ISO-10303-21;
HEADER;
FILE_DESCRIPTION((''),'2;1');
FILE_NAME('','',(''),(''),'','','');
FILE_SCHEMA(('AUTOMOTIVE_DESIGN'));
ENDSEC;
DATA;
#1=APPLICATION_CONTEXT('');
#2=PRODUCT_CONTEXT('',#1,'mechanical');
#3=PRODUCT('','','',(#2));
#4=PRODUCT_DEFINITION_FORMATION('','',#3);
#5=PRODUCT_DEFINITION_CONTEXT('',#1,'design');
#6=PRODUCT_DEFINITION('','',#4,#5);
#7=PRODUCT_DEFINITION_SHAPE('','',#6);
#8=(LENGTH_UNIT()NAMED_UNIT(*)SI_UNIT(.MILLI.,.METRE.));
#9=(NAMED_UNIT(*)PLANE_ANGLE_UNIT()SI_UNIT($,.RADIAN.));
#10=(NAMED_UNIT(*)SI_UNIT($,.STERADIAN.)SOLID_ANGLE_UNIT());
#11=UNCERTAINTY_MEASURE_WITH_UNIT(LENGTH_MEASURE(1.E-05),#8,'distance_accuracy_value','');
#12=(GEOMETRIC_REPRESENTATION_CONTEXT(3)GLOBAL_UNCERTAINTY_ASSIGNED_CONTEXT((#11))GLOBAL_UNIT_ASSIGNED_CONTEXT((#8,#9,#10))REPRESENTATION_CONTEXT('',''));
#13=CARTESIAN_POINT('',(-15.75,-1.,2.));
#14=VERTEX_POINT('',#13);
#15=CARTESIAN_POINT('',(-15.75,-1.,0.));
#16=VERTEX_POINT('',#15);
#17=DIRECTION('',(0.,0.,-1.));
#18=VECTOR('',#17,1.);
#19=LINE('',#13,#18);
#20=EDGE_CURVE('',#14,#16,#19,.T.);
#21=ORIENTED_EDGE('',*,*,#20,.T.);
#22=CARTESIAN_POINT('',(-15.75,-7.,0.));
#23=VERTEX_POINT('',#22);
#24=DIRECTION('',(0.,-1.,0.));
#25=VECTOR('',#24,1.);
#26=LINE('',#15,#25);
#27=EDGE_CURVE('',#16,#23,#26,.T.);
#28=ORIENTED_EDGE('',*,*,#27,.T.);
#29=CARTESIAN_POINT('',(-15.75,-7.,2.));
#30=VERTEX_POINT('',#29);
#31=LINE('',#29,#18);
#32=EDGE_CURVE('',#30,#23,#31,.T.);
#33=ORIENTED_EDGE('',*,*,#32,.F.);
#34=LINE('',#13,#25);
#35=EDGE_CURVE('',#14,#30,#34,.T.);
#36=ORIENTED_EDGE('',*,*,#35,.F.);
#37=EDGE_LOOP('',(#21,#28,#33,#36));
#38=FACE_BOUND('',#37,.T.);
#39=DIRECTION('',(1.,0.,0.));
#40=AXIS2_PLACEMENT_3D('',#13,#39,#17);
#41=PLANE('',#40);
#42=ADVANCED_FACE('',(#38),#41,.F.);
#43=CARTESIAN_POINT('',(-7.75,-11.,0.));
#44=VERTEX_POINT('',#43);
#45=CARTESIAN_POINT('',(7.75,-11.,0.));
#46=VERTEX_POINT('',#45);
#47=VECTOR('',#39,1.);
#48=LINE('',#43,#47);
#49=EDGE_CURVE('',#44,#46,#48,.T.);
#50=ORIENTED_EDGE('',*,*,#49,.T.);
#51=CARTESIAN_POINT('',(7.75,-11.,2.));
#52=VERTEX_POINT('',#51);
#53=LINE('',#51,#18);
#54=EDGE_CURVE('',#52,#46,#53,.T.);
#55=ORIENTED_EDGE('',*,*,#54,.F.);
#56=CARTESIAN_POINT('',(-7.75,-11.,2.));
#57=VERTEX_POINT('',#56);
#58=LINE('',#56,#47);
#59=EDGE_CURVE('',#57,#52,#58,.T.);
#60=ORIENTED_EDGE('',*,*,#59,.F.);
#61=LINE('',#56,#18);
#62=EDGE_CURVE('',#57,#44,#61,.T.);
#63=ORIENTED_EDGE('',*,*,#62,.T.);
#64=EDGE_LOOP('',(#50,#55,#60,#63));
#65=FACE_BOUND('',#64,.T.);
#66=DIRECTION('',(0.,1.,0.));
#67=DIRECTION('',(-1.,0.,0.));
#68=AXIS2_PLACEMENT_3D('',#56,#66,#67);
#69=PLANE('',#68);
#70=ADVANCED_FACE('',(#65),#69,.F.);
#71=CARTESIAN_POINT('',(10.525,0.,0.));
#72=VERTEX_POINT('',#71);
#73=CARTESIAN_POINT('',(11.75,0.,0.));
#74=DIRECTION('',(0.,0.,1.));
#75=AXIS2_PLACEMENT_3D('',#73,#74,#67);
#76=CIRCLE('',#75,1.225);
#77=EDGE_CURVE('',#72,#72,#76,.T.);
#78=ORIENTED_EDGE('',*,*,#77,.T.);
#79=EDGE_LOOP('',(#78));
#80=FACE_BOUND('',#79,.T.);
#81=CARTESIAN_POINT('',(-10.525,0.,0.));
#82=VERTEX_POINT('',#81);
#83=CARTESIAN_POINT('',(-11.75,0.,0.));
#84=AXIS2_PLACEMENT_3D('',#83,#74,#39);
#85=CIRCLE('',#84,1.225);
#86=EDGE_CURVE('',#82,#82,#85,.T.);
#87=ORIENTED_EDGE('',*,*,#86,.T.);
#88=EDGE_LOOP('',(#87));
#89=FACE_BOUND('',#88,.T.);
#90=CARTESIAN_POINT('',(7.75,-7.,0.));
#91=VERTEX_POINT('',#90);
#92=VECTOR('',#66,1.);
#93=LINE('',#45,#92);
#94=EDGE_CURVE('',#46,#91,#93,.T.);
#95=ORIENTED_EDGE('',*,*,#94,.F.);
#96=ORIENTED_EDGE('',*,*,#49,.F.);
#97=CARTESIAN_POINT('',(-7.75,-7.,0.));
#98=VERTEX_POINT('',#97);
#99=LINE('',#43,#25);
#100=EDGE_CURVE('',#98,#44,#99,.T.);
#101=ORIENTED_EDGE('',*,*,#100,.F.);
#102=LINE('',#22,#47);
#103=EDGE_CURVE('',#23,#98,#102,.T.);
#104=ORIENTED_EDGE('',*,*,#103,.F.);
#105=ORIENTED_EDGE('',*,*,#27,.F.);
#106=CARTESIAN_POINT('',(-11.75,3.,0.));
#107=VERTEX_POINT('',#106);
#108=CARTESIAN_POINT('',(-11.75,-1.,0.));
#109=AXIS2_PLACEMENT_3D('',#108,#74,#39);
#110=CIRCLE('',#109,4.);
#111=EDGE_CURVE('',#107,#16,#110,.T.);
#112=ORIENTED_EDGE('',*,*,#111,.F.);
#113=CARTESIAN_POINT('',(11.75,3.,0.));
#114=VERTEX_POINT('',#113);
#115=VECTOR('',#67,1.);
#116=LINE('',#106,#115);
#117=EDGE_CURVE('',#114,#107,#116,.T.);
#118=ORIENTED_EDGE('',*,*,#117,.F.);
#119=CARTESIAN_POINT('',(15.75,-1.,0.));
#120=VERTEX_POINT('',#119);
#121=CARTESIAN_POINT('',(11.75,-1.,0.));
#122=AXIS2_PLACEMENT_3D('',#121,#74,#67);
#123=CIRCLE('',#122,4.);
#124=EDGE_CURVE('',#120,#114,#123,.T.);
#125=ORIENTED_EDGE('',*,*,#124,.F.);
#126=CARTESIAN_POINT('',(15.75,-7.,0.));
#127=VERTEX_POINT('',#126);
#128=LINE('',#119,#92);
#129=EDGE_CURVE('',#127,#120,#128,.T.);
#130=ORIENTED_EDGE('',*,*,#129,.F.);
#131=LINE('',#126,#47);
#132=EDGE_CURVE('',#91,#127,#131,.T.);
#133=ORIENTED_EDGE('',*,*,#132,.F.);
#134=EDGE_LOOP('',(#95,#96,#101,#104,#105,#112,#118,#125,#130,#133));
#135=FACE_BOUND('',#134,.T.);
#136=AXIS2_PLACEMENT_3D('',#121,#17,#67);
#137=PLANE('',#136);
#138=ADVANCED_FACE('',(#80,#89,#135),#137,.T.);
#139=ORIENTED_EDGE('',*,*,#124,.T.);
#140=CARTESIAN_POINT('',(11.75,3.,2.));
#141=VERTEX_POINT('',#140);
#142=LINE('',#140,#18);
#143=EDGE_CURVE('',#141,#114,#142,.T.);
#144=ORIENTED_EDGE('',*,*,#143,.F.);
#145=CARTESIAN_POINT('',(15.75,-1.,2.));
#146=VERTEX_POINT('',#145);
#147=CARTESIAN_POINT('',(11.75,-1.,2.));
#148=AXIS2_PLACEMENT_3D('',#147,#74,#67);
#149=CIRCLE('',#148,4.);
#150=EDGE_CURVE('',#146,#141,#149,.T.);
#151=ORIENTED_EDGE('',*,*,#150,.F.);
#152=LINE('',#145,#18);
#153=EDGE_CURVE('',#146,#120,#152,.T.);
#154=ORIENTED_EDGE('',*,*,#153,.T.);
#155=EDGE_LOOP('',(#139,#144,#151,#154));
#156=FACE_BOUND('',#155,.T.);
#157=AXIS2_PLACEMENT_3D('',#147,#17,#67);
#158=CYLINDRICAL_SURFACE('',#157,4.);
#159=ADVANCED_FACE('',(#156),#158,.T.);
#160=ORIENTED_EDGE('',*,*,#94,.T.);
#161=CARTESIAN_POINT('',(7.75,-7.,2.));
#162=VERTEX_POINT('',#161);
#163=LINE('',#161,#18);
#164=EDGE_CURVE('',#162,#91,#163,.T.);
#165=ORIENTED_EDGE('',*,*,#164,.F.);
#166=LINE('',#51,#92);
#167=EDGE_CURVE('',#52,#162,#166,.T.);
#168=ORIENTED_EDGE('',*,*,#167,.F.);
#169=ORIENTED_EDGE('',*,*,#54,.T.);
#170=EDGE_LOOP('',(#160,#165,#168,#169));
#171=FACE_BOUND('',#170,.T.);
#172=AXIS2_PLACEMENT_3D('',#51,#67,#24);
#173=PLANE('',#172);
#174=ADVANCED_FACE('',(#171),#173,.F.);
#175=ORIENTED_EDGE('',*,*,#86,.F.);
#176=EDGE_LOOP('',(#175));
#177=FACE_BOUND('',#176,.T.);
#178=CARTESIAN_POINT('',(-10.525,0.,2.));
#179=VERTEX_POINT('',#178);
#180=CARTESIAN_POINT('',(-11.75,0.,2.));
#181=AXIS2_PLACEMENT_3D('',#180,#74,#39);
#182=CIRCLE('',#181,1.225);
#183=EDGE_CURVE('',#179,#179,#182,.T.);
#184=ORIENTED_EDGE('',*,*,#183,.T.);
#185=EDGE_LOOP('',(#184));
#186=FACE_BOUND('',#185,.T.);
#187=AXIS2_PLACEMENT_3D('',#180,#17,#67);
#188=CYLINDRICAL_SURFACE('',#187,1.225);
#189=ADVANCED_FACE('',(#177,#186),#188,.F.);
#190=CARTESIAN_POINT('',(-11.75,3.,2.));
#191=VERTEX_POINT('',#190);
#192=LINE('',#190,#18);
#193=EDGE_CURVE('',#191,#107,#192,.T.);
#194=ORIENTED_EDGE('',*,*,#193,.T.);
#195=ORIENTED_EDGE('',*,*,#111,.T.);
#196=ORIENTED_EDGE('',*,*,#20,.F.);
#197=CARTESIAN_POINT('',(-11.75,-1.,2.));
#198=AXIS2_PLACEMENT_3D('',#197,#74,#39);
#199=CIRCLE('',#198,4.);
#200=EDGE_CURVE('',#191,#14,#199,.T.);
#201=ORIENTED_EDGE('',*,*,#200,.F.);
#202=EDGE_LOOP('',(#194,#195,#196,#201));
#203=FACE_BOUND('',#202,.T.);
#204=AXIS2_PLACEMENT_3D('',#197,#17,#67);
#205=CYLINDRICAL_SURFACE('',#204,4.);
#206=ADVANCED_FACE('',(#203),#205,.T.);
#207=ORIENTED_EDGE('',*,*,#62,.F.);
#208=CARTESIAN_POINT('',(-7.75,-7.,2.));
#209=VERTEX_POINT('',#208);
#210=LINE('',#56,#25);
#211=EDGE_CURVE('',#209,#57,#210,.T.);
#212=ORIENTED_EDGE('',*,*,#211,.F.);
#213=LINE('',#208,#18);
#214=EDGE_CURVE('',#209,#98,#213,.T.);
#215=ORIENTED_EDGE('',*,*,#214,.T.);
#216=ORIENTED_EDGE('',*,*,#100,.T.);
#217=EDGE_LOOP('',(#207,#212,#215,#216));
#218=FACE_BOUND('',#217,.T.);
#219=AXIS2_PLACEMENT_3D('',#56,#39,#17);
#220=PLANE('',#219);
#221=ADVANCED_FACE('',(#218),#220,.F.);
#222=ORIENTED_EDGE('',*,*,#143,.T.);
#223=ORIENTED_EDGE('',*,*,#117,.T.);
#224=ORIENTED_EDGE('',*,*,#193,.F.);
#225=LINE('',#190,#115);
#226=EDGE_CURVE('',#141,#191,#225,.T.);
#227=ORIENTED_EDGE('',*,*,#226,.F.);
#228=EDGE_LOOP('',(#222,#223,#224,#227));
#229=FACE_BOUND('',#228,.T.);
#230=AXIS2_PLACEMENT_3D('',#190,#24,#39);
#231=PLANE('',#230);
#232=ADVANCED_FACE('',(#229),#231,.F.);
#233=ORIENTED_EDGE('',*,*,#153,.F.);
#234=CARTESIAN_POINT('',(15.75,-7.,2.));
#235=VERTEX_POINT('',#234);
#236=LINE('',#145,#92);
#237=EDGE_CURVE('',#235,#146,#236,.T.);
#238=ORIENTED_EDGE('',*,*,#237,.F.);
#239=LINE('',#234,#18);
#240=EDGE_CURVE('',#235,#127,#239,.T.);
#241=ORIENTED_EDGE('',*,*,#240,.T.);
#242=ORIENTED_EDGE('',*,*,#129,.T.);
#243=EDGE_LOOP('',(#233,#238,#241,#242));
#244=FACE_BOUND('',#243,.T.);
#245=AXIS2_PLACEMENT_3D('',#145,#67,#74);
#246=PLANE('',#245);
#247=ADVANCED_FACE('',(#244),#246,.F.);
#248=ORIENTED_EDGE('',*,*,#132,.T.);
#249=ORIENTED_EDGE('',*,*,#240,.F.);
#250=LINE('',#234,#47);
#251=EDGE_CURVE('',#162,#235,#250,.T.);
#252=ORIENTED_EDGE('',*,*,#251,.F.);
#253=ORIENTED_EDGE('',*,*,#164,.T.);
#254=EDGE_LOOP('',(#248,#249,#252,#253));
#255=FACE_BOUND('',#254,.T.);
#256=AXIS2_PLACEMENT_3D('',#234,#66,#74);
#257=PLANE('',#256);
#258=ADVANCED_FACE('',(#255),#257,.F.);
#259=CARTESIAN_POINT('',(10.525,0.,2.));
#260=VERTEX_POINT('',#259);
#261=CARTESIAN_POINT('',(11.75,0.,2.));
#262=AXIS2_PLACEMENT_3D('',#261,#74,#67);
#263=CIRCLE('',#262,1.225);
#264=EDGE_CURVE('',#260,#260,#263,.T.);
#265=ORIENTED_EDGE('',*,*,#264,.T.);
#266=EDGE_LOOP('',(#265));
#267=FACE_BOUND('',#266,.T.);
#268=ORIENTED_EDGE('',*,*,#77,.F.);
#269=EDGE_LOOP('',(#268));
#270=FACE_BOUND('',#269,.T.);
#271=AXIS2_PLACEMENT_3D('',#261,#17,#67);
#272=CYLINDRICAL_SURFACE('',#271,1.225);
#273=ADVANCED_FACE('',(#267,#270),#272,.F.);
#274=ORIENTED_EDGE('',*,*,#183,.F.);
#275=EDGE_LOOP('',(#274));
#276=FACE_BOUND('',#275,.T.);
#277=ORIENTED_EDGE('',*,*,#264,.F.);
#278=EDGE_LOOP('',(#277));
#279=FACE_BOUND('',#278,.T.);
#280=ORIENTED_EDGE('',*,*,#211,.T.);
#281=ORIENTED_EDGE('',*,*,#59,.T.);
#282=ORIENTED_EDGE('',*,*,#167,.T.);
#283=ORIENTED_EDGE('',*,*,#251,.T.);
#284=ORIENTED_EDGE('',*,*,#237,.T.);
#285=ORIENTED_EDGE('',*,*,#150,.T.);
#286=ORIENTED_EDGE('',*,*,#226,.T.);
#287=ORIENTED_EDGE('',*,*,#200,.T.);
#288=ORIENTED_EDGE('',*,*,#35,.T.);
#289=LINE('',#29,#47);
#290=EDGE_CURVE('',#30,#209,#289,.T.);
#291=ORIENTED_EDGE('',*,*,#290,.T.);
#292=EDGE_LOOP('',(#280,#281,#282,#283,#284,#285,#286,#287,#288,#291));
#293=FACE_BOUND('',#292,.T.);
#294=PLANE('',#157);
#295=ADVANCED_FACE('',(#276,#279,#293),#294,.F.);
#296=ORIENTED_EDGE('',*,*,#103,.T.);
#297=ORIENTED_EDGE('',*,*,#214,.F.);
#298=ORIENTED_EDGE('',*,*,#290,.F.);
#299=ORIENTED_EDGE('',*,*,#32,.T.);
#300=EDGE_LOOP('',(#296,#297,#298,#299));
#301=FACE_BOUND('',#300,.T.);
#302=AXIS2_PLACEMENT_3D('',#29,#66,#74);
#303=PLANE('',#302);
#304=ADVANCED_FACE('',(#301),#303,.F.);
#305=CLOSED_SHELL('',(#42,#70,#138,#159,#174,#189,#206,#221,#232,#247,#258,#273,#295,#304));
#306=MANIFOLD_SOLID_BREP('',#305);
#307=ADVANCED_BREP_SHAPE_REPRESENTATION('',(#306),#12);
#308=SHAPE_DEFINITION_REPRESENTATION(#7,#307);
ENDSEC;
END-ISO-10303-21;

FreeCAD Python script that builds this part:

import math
import FreeCAD as App
import Part
import Sketcher
Q = App.Units.Quantity

doc = App.newDocument("Part")
body = doc.addObject("PartDesign::Body", "Body")

sketch1 = doc.addObject("Sketcher::SketchObject", "Sketch")
body.addObject(sketch1)
sketch1.AttachmentSupport = (doc.XY_Plane, [""])
sketch1.MapMode = "FlatFace"
sketch1.addGeometry([
    Part.LineSegment(App.Vector(-15.8, -7, 0), App.Vector(-7.8, -7, 0)),
    Part.LineSegment(App.Vector(-7.8, -7, 0), App.Vector(-7.8, -11, 0)),
    Part.LineSegment(App.Vector(-7.8, -11, 0), App.Vector(7.8, -11, 0)),
    Part.LineSegment(App.Vector(7.8, -11, 0), App.Vector(7.8, -7, 0)),
    Part.LineSegment(App.Vector(7.8, -7, 0), App.Vector(15.8, -7, 0)),
    Part.LineSegment(App.Vector(15.8, -7, 0), App.Vector(15.8, -1, 0)),
    Part.ArcOfCircle(Part.Circle(App.Vector(11.8, -1, 0), App.Vector(0, 0, 1), 4), math.radians(0), math.radians(90)),
    Part.LineSegment(App.Vector(11.8, 3, 0), App.Vector(-11.8, 3, 0)),
    Part.ArcOfCircle(Part.Circle(App.Vector(-11.8, -1, 0), App.Vector(0, 0, 1), 4), math.radians(90), math.radians(180)),
    Part.LineSegment(App.Vector(-15.8, -1, 0), App.Vector(-15.8, -7, 0)),
    Part.Circle(App.Vector(-11.8, 0, 0), App.Vector(0, 0, 1), 1.2),
    Part.Circle(App.Vector(11.8, 0, 0), App.Vector(0, 0, 1), 1.2),
], False)
sketch1.addConstraint([
    Sketcher.Constraint("Coincident", 0, 2, 1, 1),
    Sketcher.Constraint("Coincident", 1, 2, 2, 1),
    Sketcher.Constraint("Coincident", 2, 2, 3, 1),
    Sketcher.Constraint("Coincident", 3, 2, 4, 1),
    Sketcher.Constraint("Coincident", 4, 2, 5, 1),
    Sketcher.Constraint("Tangent", 5, 2, 6, 1),
    Sketcher.Constraint("Tangent", 6, 2, 7, 1),
    Sketcher.Constraint("Tangent", 7, 2, 8, 1),
    Sketcher.Constraint("Tangent", 8, 2, 9, 1),
    Sketcher.Constraint("Coincident", 9, 2, 0, 1),
    Sketcher.Constraint("Horizontal", 0),
    Sketcher.Constraint("Vertical", 1),
    Sketcher.Constraint("Horizontal", 2),
    Sketcher.Constraint("Vertical", 3),
    Sketcher.Constraint("Horizontal", 4),
    Sketcher.Constraint("Vertical", 5),
    Sketcher.Constraint("Horizontal", 7),
    Sketcher.Constraint("Vertical", 9),
    Sketcher.Constraint("Equal", 6, 8),
    Sketcher.Constraint("Equal", 10, 11),
    Sketcher.Constraint("Symmetric", 10, 3, 11, 3, -1, 1),
    Sketcher.Constraint("Symmetric", 0, 2, 3, 2, -2),
    Sketcher.Constraint("PointOnObject", 10, 3, -1),
    Sketcher.Constraint("Vertical", 8, 3, 10, 3),
    Sketcher.Constraint("Vertical", 6, 3, 11, 3),
    Sketcher.Constraint("Radius", 6, Q("4 mm")),
    Sketcher.Constraint("Diameter", 10, Q("2.45 mm")),
    Sketcher.Constraint("DistanceX", 0, 1, 0, 2, Q("8 mm")),
    Sketcher.Constraint("DistanceY", 1, 2, 1, 1, Q("4 mm")),
    Sketcher.Constraint("DistanceY", 5, 1, 5, 2, Q("6 mm")),
    Sketcher.Constraint("DistanceX", 2, 1, 2, 2, Q("15.5 mm")),
    Sketcher.Constraint("DistanceY", 6, 3, -1, 1, Q("1 mm")),
])
pad1 = doc.addObject("PartDesign::Pad", "Pad")
body.addObject(pad1)
pad1.Profile = sketch1
pad1.Length = 2

doc.recompute()
